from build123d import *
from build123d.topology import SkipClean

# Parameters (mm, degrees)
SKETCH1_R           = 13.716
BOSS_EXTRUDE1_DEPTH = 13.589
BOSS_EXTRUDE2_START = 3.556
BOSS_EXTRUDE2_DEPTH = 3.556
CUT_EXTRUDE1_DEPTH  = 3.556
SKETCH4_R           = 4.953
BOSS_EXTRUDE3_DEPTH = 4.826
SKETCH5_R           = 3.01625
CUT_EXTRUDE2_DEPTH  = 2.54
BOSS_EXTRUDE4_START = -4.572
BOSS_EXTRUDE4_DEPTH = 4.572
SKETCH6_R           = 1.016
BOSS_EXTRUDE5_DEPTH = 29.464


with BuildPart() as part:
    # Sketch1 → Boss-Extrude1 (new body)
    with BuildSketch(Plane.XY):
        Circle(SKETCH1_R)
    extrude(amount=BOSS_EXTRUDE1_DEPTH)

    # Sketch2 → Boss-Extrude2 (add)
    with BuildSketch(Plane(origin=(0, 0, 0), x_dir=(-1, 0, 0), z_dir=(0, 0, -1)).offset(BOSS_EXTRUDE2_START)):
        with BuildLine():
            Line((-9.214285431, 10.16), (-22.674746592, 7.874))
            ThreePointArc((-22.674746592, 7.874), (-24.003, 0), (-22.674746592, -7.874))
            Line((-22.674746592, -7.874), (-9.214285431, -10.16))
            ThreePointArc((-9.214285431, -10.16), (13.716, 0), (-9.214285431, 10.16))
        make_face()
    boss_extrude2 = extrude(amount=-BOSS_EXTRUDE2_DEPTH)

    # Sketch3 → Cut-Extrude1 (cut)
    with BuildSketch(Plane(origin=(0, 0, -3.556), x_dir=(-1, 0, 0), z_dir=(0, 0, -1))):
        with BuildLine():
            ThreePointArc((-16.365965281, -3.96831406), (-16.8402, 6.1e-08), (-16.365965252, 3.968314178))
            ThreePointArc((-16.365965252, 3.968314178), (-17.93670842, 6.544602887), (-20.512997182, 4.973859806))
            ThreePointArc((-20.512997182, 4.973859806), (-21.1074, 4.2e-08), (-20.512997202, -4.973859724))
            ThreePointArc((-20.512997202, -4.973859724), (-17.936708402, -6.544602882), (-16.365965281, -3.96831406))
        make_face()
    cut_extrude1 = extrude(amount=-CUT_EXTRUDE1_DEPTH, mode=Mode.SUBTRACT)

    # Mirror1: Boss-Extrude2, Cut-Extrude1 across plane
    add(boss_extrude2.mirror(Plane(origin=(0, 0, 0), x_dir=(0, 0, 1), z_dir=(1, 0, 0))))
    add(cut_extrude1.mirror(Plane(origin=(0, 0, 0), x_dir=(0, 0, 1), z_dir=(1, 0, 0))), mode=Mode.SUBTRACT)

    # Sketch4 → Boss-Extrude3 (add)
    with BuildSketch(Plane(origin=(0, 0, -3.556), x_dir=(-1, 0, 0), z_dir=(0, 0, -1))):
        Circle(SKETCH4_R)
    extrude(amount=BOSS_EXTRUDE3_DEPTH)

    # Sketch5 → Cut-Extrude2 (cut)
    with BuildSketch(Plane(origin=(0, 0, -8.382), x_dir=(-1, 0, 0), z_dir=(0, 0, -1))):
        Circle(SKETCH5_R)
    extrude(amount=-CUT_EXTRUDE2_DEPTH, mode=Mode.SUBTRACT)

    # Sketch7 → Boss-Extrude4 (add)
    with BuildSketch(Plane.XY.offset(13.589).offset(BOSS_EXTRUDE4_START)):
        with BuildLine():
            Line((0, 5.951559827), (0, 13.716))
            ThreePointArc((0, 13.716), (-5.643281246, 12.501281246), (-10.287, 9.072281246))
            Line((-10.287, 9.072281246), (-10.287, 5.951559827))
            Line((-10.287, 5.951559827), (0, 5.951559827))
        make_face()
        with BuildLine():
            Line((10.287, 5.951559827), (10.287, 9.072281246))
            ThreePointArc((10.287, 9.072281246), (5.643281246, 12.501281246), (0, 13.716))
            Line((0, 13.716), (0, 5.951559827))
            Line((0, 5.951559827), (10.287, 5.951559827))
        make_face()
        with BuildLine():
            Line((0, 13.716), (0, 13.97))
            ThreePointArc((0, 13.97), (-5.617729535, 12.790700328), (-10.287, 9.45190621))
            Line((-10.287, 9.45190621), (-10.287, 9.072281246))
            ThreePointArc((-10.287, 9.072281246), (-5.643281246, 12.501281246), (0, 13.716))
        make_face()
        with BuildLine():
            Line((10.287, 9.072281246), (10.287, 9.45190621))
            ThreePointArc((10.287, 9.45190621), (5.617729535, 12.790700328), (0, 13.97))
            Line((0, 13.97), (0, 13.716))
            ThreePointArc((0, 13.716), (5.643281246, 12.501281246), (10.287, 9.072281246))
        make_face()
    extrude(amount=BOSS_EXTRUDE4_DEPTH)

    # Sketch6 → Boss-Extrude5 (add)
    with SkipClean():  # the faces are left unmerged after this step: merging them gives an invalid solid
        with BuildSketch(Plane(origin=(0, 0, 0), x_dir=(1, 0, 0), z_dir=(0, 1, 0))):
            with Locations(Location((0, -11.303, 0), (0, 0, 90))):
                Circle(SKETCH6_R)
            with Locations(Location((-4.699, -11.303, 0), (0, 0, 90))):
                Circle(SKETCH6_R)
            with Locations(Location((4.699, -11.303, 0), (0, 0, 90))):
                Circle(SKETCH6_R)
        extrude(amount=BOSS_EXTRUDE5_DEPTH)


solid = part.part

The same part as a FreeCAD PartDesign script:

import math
import FreeCAD as App
import Part
import Sketcher
Q = App.Units.Quantity

doc = App.newDocument("Part")
params = doc.addObject("Spreadsheet::Sheet", "Params")
for row, (alias, value) in enumerate([
    ("sketch1_diameter", "1.08 in"),
    ("pad1_length", "0.535 in"),
    ("sketch2_radius", "0.54 in"),
    ("sketch2_radius2", "0.945 in"),
    ("pad2_length", "0.14 in"),
    ("sketch3_radius", "0.663 in"),
    ("sketch3_radius2", "0.084 in"),
    ("pocket1_length", "0.14 in"),
    ("sketch4_diameter", "0.39 in"),
    ("pad3_length", "0.19 in"),
    ("pocket2_length", "0.1 in"),
    ("sketch6_radius", "0.55 in"),
    ("sketch6_width", "0.81 in"),
    ("pad4_length", "0.18 in"),
    ("sketch7_diameter", "0.08 in"),
    ("pad5_length", "1.16 in"),
], start=1):
    params.set(f"A{row}", alias)
    params.set(f"B{row}", "=" + value)
    params.setAlias(f"B{row}", alias)

body = doc.addObject("PartDesign::Body", "Body")

sketch1 = doc.addObject("Sketcher::SketchObject", "Sketch")
body.addObject(sketch1)
sketch1.AttachmentSupport = (doc.XY_Plane, [""])
sketch1.MapMode = "FlatFace"
sketch1.addGeometry(Part.Circle(App.Vector(0, 0, 0), App.Vector(0, 0, 1), 14), False)
sketch1.addConstraint([
    Sketcher.Constraint("Coincident", 0, 3, -1, 1),
    Sketcher.Constraint("Diameter", 0, Q("1.08 in")),
])
sketch1.setExpression("Constraints[1]", "Params.sketch1_diameter")
pad1 = doc.addObject("PartDesign::Pad", "Pad")
body.addObject(pad1)
pad1.Profile = sketch1
pad1.setExpression("Length", "Params.pad1_length")

sketch2 = doc.addObject("Sketcher::SketchObject", "Sketch001")
body.addObject(sketch2)
sketch2.AttachmentSupport = (doc.XY_Plane, [""])
sketch2.MapMode = "FlatFace"
sketch2.AttachmentOffset = App.Placement(App.Vector(0, 0, -0.14 * 25.4), App.Rotation())
sketch2.addGeometry([
    Part.LineSegment(App.Vector(9, 10, 0), App.Vector(23, 8, 0)),
    Part.ArcOfCircle(Part.Circle(App.Vector(0, 0, 0), App.Vector(0, 0, 1), 24), math.radians(-19), math.radians(19)),
    Part.LineSegment(App.Vector(23, -8, 0), App.Vector(9, -10, 0)),
    Part.ArcOfCircle(Part.Circle(App.Vector(0, 0, 0), App.Vector(0, 0, 1), 14), math.radians(48), math.radians(312)),
], False)
sketch2.addConstraint([
    Sketcher.Constraint("Coincident", 0, 2, 1, 2),
    Sketcher.Constraint("Coincident", 1, 1, 2, 1),
    Sketcher.Constraint("Coincident", 2, 2, 3, 2),
    Sketcher.Constraint("Coincident", 3, 1, 0, 1),
    Sketcher.Constraint("Coincident", 1, 3, -1, 1),
    Sketcher.Constraint("Coincident", 3, 3, -1, 1),
    Sketcher.Constraint("Vertical", 0, 2, 1, 1),
    Sketcher.Constraint("Vertical", 2, 2, 3, 1),
    Sketcher.Constraint("Radius", 3, Q("0.54 in")),
    Sketcher.Constraint("Radius", 1, Q("0.945 in")),
    Sketcher.Constraint("DistanceY", 2, 2, -1, 1, Q("0.4 in")),
    Sketcher.Constraint("DistanceY", -1, 1, 0, 2, Q("0.31 in")),
])
sketch2.setExpression("Constraints[8]", "Params.sketch2_radius")
sketch2.setExpression("Constraints[9]", "Params.sketch2_radius2")
pad2 = doc.addObject("PartDesign::Pad", "Pad001")
body.addObject(pad2)
pad2.Profile = sketch2
pad2.setExpression("Length", "Params.pad2_length")

sketch3 = doc.addObject("Sketcher::SketchObject", "Sketch002")
body.addObject(sketch3)
sketch3.AttachmentSupport = (doc.XY_Plane, [""])
sketch3.MapMode = "FlatFace"
sketch3.AttachmentOffset = App.Placement(App.Vector(0, 0, -0.14 * 25.4), App.Rotation())
sketch3.addGeometry([
    Part.ArcOfCircle(Part.Circle(App.Vector(0, 0, 0), App.Vector(0, 0, 1), 16.8), math.radians(-14), math.radians(14)),
    Part.ArcOfCircle(Part.Circle(App.Vector(18.4, 4.5, 0), App.Vector(0, 0, 1), 2.1), math.radians(14), math.radians(194)),
    Part.ArcOfCircle(Part.Circle(App.Vector(0, 0, 0), App.Vector(0, 0, 1), 21.1), math.radians(-14), math.radians(14)),
    Part.ArcOfCircle(Part.Circle(App.Vector(18.4, -4.5, 0), App.Vector(0, 0, 1), 2.1), math.radians(166), math.radians(346)),
], False)
sketch3.addConstraint([
    Sketcher.Constraint("Tangent", 0, 2, 1, 2),
    Sketcher.Constraint("Tangent", 1, 1, 2, 2),
    Sketcher.Constraint("Tangent", 2, 1, 3, 2),
    Sketcher.Constraint("Tangent", 3, 1, 0, 1),
    Sketcher.Constraint("Coincident", 0, 3, -1, 1),
    Sketcher.Constraint("Coincident", 2, 3, -1, 1),
    Sketcher.Constraint("Vertical", 1, 3, 3, 3),
    Sketcher.Constraint("Radius", 0, Q("0.663 in")),
    Sketcher.Constraint("Radius", 1, Q("0.084 in")),
    Sketcher.Constraint("DistanceY", 3, 3, 0, 2, 8.439401),
])
sketch3.setExpression("Constraints[7]", "Params.sketch3_radius")
sketch3.setExpression("Constraints[8]", "Params.sketch3_radius2")
pocket1 = doc.addObject("PartDesign::Pocket", "Pocket")
body.addObject(pocket1)
pocket1.Profile = sketch3
pocket1.setExpression("Length", "Params.pocket1_length")
pocket1.Reversed = True
doc.recompute()

mirrored = doc.addObject("PartDesign::Mirrored", "Mirrored")
body.addObject(mirrored)
mirrored.Originals = [pad2, pocket1]
mirrored.MirrorPlane = (doc.YZ_Plane, [""])
body.Tip = mirrored

sketch4 = doc.addObject("Sketcher::SketchObject", "Sketch003")
body.addObject(sketch4)
sketch4.AttachmentSupport = (doc.XY_Plane, [""])
sketch4.MapMode = "FlatFace"
sketch4.AttachmentOffset = App.Placement(App.Vector(0, 0, -0.14 * 25.4), App.Rotation())
sketch4.addGeometry(Part.Circle(App.Vector(0, 0, 0), App.Vector(0, 0, 1), 5), False)
sketch4.addConstraint([
    Sketcher.Constraint("Coincident", 0, 3, -1, 1),
    Sketcher.Constraint("Diameter", 0, Q("0.39 in")),
])
sketch4.setExpression("Constraints[1]", "Params.sketch4_diameter")
pad3 = doc.addObject("PartDesign::Pad", "Pad002")
body.addObject(pad3)
pad3.Profile = sketch4
pad3.setExpression("Length", "Params.pad3_length")
pad3.Reversed = True

sketch5 = doc.addObject("Sketcher::SketchObject", "Sketch004")
body.addObject(sketch5)
sketch5.AttachmentSupport = (doc.XY_Plane, [""])
sketch5.MapMode = "FlatFace"
sketch5.AttachmentOffset = App.Placement(App.Vector(0, 0, -0.33 * 25.4), App.Rotation())
sketch5.addGeometry(Part.Circle(App.Vector(0, 0, 0), App.Vector(0, 0, 1), 3), False)
sketch5.addConstraint([
    Sketcher.Constraint("Coincident", 0, 3, -1, 1),
    Sketcher.Constraint("Diameter", 0, Q("0.2375 in")),
])
pocket2 = doc.addObject("PartDesign::Pocket", "Pocket001")
body.addObject(pocket2)
pocket2.Profile = sketch5
pocket2.setExpression("Length", "Params.pocket2_length")
pocket2.Reversed = True

sketch6 = doc.addObject("Sketcher::SketchObject", "Sketch005")
body.addObject(sketch6)
sketch6.AttachmentSupport = (doc.XY_Plane, [""])
sketch6.MapMode = "FlatFace"
sketch6.AttachmentOffset = App.Placement(App.Vector(0, 0, 0.355 * 25.4), App.Rotation())
sketch6.addGeometry([
    Part.LineSegment(App.Vector(-10.3, 6, 0), App.Vector(10.3, 6, 0)),
    Part.LineSegment(App.Vector(10.3, 6, 0), App.Vector(10.3, 9.5, 0)),
    Part.ArcOfCircle(Part.Circle(App.Vector(0, 0, 0), App.Vector(0, 0, 1), 14), math.radians(43), math.radians(90)),
    Part.ArcOfCircle(Part.Circle(App.Vector(0, 0, 0), App.Vector(0, 0, 1), 14), math.radians(90), math.radians(137)),
    Part.LineSegment(App.Vector(-10.3, 9.5, 0), App.Vector(-10.3, 6, 0)),
], False)
sketch6.addConstraint([
    Sketcher.Constraint("Coincident", 0, 2, 1, 1),
    Sketcher.Constraint("Coincident", 1, 2, 2, 1),
    Sketcher.Constraint("Tangent", 2, 2, 3, 1),
    Sketcher.Constraint("Coincident", 3, 2, 4, 1),
    Sketcher.Constraint("Coincident", 4, 2, 0, 1),
    Sketcher.Constraint("Horizontal", 0),
    Sketcher.Constraint("Vertical", 1),
    Sketcher.Constraint("Vertical", 4),
    Sketcher.Constraint("Coincident", 2, 3, -1, 1),
    Sketcher.Constraint("Equal", 2, 3),
    Sketcher.Constraint("PointOnObject", 2, 2, -2),
    Sketcher.Constraint("Horizontal", 1, 2, 3, 2),
    Sketcher.Constraint("Radius", 2, Q("0.55 in")),
    Sketcher.Constraint("DistanceX", 0, 1, 0, 2, Q("0.81 in")),
    Sketcher.Constraint("DistanceY", 1, 1, 1, 2, 3.500346),
])
sketch6.setExpression("Constraints[12]", "Params.sketch6_radius")
sketch6.setExpression("Constraints[13]", "Params.sketch6_width")
pad4 = doc.addObject("PartDesign::Pad", "Pad003")
body.addObject(pad4)
pad4.Profile = sketch6
pad4.setExpression("Length", "Params.pad4_length")

sketch7 = doc.addObject("Sketcher::SketchObject", "Sketch006")
body.addObject(sketch7)
sketch7.AttachmentSupport = (doc.XZ_Plane, [""])
sketch7.MapMode = "FlatFace"
sketch7.addGeometry([
    Part.Circle(App.Vector(0, 11.3, 0), App.Vector(0, 0, 1), 1),
    Part.Circle(App.Vector(-4.7, 11.3, 0), App.Vector(0, 0, 1), 1),
    Part.Circle(App.Vector(4.7, 11.3, 0), App.Vector(0, 0, 1), 1),
], False)
sketch7.addConstraint([
    Sketcher.Constraint("Equal", 0, 1),
    Sketcher.Constraint("Equal", 1, 2),
    Sketcher.Constraint("Symmetric", 1, 3, 2, 3, -2),
    Sketcher.Constraint("PointOnObject", 0, 3, -2),
    Sketcher.Constraint("Horizontal", 0, 3, 1, 3),
    Sketcher.Constraint("Diameter", 0, Q("0.08 in")),
    Sketcher.Constraint("DistanceX", 1, 3, 2, 3, Q("0.37 in")),
    Sketcher.Constraint("DistanceY", -1, 1, 0, 3, Q("0.445 in")),
])
sketch7.setExpression("Constraints[5]", "Params.sketch7_diameter")
pad5 = doc.addObject("PartDesign::Pad", "Pad004")
body.addObject(pad5)
pad5.Profile = sketch7
pad5.setExpression("Length", "Params.pad5_length")
pad5.Reversed = True

doc.recompute()
